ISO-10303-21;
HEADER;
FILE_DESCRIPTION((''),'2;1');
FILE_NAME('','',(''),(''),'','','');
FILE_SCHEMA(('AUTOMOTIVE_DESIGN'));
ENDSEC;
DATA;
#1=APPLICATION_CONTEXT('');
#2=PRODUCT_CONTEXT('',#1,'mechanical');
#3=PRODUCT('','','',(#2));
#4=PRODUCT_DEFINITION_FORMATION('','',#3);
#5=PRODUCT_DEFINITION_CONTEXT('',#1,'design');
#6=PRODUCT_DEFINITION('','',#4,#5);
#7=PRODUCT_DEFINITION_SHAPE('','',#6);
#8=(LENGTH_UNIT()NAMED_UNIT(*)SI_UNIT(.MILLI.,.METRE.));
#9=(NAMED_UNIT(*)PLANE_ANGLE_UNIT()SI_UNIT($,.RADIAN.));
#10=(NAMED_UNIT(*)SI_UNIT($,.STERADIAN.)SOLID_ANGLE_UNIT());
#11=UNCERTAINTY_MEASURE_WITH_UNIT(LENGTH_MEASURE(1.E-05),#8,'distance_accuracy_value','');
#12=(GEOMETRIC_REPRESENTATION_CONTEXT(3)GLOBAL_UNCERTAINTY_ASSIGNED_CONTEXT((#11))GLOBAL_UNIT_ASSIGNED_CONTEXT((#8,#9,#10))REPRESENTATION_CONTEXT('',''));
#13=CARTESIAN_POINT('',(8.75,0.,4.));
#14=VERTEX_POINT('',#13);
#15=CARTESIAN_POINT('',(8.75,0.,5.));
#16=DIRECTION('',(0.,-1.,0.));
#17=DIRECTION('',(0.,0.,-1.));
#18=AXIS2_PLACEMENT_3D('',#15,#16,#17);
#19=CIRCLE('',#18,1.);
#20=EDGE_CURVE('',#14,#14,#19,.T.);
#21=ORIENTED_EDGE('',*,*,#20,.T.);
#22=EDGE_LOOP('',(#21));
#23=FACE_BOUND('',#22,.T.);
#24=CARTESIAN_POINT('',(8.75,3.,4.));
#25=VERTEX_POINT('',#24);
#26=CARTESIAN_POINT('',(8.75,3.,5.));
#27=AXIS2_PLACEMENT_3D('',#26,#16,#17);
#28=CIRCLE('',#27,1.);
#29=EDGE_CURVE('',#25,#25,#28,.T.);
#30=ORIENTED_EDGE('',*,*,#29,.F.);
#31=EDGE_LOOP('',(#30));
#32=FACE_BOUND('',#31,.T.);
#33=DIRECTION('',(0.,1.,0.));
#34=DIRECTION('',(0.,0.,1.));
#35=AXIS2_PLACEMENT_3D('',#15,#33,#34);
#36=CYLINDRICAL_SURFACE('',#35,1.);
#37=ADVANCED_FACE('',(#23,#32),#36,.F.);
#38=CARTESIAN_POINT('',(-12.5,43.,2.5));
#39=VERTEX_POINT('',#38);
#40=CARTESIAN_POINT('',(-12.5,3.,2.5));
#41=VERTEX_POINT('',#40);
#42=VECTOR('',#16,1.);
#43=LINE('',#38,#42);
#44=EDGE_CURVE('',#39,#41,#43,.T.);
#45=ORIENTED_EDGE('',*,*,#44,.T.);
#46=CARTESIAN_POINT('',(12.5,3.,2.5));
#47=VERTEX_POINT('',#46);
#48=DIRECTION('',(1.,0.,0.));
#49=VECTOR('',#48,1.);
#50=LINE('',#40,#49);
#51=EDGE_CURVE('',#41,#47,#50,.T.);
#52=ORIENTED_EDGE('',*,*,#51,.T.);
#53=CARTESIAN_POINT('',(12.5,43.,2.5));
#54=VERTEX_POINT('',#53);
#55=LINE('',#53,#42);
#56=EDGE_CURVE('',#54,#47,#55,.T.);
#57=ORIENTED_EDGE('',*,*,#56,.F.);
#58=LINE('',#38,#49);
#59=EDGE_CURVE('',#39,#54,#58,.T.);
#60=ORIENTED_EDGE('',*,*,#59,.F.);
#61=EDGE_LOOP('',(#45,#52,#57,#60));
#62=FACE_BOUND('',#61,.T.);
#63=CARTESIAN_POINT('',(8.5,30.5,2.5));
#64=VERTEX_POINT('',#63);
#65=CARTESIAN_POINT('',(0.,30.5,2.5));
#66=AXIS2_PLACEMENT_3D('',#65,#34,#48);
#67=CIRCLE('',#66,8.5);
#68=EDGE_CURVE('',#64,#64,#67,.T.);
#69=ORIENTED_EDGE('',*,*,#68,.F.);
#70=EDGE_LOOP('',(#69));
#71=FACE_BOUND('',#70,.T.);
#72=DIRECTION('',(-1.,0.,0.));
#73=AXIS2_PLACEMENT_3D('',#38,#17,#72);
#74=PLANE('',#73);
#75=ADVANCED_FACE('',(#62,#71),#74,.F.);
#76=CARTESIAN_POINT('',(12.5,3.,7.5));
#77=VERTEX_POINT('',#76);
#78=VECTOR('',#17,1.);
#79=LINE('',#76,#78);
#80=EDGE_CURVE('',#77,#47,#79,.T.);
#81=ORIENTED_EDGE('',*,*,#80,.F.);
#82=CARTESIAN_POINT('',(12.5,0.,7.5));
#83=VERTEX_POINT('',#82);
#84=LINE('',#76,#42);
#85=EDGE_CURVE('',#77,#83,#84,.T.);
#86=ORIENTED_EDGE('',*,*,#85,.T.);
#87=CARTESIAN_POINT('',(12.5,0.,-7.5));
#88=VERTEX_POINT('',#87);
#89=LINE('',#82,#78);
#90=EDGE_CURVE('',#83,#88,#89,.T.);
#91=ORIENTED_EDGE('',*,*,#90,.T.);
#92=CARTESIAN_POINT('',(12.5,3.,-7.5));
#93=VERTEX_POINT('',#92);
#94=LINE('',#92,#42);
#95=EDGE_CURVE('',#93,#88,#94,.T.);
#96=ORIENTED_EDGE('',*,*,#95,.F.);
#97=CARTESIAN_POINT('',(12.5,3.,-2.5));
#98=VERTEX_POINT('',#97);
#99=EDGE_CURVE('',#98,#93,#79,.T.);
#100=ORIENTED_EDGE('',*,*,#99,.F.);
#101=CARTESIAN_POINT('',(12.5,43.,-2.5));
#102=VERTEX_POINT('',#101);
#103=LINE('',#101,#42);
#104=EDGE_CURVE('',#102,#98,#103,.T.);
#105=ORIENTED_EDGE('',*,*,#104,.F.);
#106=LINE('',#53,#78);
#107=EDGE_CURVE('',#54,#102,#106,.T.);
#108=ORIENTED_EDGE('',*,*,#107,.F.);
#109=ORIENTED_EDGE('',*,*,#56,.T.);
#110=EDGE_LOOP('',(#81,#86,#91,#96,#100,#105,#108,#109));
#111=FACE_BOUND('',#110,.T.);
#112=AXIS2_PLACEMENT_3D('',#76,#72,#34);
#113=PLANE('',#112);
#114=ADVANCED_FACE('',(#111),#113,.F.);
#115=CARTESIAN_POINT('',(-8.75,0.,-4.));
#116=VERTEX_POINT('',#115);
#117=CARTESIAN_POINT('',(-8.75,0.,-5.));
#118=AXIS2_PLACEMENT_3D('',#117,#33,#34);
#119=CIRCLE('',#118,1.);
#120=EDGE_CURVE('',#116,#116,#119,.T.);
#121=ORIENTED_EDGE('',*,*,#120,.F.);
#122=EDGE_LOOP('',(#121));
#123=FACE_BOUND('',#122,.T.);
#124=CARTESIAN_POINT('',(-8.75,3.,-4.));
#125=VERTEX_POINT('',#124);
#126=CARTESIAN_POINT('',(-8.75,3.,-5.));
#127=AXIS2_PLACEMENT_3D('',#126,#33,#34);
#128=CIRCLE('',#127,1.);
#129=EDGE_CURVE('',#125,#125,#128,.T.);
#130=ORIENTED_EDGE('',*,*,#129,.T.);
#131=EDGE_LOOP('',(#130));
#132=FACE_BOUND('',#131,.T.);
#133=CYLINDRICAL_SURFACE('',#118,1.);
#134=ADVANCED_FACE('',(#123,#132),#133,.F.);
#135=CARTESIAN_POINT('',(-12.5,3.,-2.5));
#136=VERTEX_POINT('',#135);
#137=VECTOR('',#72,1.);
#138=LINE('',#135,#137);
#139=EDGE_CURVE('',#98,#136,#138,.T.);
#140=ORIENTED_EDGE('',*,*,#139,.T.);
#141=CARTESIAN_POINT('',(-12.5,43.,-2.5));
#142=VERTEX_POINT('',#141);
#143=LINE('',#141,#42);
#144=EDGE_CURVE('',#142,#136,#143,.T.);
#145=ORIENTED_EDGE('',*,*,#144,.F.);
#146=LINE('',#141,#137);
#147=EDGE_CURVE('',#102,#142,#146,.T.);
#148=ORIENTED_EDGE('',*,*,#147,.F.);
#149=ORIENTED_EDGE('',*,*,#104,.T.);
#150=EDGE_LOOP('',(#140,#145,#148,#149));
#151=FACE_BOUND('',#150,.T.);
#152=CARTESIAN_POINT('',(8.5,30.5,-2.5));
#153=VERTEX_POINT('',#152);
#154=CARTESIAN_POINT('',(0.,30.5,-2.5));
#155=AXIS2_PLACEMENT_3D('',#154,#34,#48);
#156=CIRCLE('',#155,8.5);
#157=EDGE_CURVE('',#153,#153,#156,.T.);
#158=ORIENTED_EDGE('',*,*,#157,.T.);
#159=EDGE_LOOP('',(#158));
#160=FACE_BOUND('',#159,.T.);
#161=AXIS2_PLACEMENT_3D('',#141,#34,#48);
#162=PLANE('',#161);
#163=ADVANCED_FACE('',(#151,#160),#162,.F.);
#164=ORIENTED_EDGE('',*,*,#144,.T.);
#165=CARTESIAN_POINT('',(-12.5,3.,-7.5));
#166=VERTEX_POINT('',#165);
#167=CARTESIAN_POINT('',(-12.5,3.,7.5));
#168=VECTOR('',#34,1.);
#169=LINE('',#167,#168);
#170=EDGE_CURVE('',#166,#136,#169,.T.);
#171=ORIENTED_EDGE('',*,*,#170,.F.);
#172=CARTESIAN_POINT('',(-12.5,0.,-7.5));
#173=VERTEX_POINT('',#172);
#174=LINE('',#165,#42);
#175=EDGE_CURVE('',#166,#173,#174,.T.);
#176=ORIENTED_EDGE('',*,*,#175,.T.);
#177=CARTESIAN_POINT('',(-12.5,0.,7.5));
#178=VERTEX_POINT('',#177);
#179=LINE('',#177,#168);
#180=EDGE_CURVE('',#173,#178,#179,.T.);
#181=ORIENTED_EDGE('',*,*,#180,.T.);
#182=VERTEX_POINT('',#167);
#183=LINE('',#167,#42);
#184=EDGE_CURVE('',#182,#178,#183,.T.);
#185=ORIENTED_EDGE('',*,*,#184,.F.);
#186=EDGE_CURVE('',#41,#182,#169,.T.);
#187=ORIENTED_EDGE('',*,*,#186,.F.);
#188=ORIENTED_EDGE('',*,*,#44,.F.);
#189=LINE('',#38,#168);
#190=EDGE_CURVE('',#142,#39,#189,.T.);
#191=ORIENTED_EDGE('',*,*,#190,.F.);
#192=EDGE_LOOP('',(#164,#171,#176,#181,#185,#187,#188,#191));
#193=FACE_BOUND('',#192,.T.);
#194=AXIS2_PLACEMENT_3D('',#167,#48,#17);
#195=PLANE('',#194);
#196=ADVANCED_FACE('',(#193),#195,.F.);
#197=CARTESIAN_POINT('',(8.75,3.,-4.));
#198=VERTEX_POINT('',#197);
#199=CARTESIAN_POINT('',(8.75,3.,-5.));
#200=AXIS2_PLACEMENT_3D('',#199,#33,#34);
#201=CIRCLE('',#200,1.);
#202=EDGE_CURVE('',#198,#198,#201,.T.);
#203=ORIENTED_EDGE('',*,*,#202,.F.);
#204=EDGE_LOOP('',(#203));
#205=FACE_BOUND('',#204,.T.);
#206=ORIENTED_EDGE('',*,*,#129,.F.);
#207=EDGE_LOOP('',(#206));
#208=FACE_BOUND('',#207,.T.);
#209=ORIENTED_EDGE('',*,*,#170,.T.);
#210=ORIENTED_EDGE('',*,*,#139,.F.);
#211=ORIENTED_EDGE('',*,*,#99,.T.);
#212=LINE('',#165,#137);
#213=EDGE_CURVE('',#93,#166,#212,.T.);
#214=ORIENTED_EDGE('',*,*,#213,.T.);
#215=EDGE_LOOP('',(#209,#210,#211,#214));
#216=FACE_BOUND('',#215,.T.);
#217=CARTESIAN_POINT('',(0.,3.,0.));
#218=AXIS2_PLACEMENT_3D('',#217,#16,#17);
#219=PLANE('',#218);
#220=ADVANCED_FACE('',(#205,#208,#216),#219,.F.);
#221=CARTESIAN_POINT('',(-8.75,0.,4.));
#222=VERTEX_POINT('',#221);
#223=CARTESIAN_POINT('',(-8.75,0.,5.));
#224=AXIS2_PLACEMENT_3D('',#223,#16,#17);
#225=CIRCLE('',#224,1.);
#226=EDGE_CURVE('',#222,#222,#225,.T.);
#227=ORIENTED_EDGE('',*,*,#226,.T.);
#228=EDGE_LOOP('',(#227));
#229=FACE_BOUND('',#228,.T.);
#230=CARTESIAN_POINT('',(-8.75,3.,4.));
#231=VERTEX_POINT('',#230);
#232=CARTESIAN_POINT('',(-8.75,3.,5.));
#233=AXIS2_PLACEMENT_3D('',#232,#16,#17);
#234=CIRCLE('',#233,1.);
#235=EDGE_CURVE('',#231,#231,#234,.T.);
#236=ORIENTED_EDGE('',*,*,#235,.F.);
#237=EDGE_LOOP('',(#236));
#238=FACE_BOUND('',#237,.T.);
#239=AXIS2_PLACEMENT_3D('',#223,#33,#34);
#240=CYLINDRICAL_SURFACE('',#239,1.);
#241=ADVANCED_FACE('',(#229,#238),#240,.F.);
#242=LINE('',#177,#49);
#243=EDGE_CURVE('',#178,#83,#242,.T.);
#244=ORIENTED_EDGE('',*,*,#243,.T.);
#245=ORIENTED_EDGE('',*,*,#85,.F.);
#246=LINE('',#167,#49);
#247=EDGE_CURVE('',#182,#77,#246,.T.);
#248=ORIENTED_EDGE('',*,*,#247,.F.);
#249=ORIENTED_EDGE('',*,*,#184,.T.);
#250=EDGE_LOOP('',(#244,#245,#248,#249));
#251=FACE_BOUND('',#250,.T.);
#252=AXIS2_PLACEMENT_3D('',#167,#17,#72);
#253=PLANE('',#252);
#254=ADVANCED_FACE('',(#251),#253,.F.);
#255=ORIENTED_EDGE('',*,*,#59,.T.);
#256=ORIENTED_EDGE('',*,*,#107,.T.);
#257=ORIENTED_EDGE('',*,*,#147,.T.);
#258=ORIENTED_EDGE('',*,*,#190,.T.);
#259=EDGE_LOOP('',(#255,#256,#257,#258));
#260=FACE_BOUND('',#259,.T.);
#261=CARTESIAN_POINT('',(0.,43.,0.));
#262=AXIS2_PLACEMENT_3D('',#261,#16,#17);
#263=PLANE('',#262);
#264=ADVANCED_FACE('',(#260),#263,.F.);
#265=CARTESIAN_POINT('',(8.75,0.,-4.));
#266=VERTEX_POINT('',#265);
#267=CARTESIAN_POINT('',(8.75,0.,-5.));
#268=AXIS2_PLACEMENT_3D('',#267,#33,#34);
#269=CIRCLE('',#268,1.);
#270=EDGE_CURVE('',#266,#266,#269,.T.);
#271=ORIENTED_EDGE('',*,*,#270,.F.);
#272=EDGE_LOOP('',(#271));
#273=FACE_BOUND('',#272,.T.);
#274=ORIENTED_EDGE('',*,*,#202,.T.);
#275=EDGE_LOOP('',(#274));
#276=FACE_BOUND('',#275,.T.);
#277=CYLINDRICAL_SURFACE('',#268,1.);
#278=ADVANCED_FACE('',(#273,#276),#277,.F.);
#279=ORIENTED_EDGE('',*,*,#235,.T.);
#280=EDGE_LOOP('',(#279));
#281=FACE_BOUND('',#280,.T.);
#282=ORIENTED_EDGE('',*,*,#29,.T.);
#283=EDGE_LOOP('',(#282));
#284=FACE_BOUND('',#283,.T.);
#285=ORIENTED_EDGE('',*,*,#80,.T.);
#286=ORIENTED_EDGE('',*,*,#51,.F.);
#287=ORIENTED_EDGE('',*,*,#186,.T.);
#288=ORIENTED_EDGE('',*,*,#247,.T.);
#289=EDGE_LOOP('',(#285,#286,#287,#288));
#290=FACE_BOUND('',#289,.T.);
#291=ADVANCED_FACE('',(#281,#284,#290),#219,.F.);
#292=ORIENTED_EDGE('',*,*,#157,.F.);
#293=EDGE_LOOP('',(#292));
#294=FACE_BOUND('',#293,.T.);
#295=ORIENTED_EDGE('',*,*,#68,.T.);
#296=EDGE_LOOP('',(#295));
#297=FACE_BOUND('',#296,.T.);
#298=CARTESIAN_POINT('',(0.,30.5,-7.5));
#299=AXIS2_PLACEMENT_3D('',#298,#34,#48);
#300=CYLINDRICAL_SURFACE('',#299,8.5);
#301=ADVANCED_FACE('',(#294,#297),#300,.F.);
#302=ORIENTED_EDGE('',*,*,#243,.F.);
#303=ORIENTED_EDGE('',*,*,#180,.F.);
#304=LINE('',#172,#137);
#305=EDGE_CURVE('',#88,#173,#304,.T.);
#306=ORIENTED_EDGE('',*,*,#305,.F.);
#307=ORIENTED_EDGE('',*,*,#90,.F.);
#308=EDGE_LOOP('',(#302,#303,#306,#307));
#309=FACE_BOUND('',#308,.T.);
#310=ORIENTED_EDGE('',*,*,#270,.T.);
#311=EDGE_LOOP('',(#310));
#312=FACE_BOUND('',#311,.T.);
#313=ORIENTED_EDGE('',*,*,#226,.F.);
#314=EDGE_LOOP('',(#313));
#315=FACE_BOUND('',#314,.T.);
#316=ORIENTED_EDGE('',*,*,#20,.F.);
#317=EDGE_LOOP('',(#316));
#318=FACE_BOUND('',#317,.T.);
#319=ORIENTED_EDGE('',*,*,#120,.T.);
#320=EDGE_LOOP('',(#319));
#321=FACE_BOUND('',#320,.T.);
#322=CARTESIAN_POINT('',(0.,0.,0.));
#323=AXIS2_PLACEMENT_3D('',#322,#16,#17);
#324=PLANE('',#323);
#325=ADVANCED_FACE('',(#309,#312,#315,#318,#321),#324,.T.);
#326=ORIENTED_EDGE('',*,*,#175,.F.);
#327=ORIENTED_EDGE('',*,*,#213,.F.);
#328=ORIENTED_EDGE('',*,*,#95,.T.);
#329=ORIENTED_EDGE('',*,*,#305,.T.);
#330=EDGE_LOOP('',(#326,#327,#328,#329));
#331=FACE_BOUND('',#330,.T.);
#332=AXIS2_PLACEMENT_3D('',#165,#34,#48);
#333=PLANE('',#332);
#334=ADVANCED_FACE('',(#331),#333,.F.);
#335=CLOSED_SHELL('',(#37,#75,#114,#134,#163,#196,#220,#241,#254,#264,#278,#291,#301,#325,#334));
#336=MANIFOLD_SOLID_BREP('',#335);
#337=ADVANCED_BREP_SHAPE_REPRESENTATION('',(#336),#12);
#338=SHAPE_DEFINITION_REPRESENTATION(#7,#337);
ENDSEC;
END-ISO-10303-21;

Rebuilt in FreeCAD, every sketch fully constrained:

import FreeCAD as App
import Part
import Sketcher
from FreeCAD import Vector
Q = App.Units.Quantity


def add_polygon(sketch, points):
    """Adds a closed chain of lines whose ends are joined by coincident constraints."""
    first, n = sketch.GeometryCount, len(points)
    for a, b in zip(points, points[1:] + points[:1]):
        sketch.addGeometry(Part.LineSegment(App.Vector(*a, 0), App.Vector(*b, 0)), False)
    for i in range(n):
        sketch.addConstraint(Sketcher.Constraint("Coincident", first + i, 2, first + (i + 1) % n, 1))

doc = App.newDocument("Part")
body = doc.addObject("PartDesign::Body", "Body")

# Sketch on XZ plane
sketch1 = doc.addObject("Sketcher::SketchObject", "Sketch")
body.addObject(sketch1)
sketch1.AttachmentSupport = (doc.XZ_Plane, [""])
sketch1.MapMode = "FlatFace"
add_polygon(sketch1, [(-12.5, -7.5), (-12.5, 7.5), (12.5, 7.5), (12.5, -7.5)])  # lines 0-3
sketch1.addConstraint(Sketcher.Constraint("Vertical", 0))
sketch1.addConstraint(Sketcher.Constraint("Horizontal", 1))
sketch1.addConstraint(Sketcher.Constraint("Vertical", 2))
sketch1.addConstraint(Sketcher.Constraint("Horizontal", 3))
sketch1.addConstraint(Sketcher.Constraint("Symmetric", 0, 2, 2, 2, -1, 1))
sketch1.addConstraint(Sketcher.Constraint("DistanceX", 1, 1, 1, 2, Q("25 mm")))
sketch1.addConstraint(Sketcher.Constraint("DistanceY", 0, 1, 0, 2, Q("15 mm")))
pad1 = doc.addObject("PartDesign::Pad", "Pad")
body.addObject(pad1)
pad1.Profile = sketch1
pad1.Length = 3
pad1.Reversed = True

# Sketch on XZ plane
sketch2 = doc.addObject("Sketcher::SketchObject", "Sketch001")
body.addObject(sketch2)
sketch2.AttachmentSupport = (doc.XZ_Plane, [""])
sketch2.MapMode = "FlatFace"
sketch2.AttachmentOffset = App.Placement(Vector(0, 0, -3), App.Rotation())
add_polygon(sketch2, [(-12.5, -2.5), (-12.5, 2.5), (12.5, 2.5), (12.5, -2.5)])  # lines 0-3
sketch2.addConstraint(Sketcher.Constraint("Vertical", 0))
sketch2.addConstraint(Sketcher.Constraint("Horizontal", 1))
sketch2.addConstraint(Sketcher.Constraint("Vertical", 2))
sketch2.addConstraint(Sketcher.Constraint("Horizontal", 3))
sketch2.addConstraint(Sketcher.Constraint("Symmetric", 0, 2, 2, 2, -1, 1))
sketch2.addConstraint(Sketcher.Constraint("DistanceX", 1, 1, 1, 2, Q("25 mm")))
sketch2.addConstraint(Sketcher.Constraint("DistanceY", 0, 1, 0, 2, Q("5 mm")))
pad2 = doc.addObject("PartDesign::Pad", "Pad001")
body.addObject(pad2)
pad2.Profile = sketch2
pad2.Length = 40
pad2.Reversed = True

# Sketch on XZ plane
sketch3 = doc.addObject("Sketcher::SketchObject", "Sketch002")
body.addObject(sketch3)
sketch3.AttachmentSupport = (doc.XZ_Plane, [""])
sketch3.MapMode = "FlatFace"
sketch3.AttachmentOffset = App.Placement(Vector(0, 0, -3), App.Rotation())
sketch3.addGeometry(Part.Circle(Vector(-8.75, -5, 0), Vector(0, 0, 1), 1), False)
sketch3.addGeometry(Part.Circle(Vector(8.75, -5, 0), Vector(0, 0, 1), 1), False)
sketch3.addConstraint(Sketcher.Constraint("Equal", 0, 1))
sketch3.addConstraint(Sketcher.Constraint("Symmetric", 0, 3, 1, 3, -2))
sketch3.addConstraint(Sketcher.Constraint("Diameter", 0, Q("2 mm")))
sketch3.addConstraint(Sketcher.Constraint("DistanceY", 0, 3, -1, 1, Q("5 mm")))
sketch3.addConstraint(Sketcher.Constraint("DistanceX", 0, 3, 1, 3, Q("17.5 mm")))
pocket1 = doc.addObject("PartDesign::Pocket", "Pocket")
body.addObject(pocket1)
pocket1.Profile = sketch3
pocket1.Type = "ThroughAll"
pocket1.Reversed = True
doc.recompute()

mirrored = doc.addObject("PartDesign::Mirrored", "Mirrored")
body.addObject(mirrored)
mirrored.Originals = [pocket1]
mirrored.MirrorPlane = (doc.XY_Plane, [""])
body.Tip = mirrored

# Sketch on XY plane
sketch4 = doc.addObject("Sketcher::SketchObject", "Sketch003")
body.addObject(sketch4)
sketch4.AttachmentSupport = (doc.XY_Plane, [""])
sketch4.MapMode = "FlatFace"
sketch4.AttachmentOffset = App.Placement(Vector(0, 0, 2.5), App.Rotation())
sketch4.addGeometry(Part.Circle(Vector(0, 30.5, 0), Vector(0, 0, 1), 8.5), False)
sketch4.addConstraint(Sketcher.Constraint("PointOnObject", 0, 3, -2))
sketch4.addConstraint(Sketcher.Constraint("Diameter", 0, Q("17 mm")))
sketch4.addConstraint(Sketcher.Constraint("DistanceY", -1, 1, 0, 3, Q("30.5 mm")))
pocket2 = doc.addObject("PartDesign::Pocket", "Pocket001")
body.addObject(pocket2)
pocket2.Profile = sketch4
pocket2.Type = "ThroughAll"

doc.recompute()
